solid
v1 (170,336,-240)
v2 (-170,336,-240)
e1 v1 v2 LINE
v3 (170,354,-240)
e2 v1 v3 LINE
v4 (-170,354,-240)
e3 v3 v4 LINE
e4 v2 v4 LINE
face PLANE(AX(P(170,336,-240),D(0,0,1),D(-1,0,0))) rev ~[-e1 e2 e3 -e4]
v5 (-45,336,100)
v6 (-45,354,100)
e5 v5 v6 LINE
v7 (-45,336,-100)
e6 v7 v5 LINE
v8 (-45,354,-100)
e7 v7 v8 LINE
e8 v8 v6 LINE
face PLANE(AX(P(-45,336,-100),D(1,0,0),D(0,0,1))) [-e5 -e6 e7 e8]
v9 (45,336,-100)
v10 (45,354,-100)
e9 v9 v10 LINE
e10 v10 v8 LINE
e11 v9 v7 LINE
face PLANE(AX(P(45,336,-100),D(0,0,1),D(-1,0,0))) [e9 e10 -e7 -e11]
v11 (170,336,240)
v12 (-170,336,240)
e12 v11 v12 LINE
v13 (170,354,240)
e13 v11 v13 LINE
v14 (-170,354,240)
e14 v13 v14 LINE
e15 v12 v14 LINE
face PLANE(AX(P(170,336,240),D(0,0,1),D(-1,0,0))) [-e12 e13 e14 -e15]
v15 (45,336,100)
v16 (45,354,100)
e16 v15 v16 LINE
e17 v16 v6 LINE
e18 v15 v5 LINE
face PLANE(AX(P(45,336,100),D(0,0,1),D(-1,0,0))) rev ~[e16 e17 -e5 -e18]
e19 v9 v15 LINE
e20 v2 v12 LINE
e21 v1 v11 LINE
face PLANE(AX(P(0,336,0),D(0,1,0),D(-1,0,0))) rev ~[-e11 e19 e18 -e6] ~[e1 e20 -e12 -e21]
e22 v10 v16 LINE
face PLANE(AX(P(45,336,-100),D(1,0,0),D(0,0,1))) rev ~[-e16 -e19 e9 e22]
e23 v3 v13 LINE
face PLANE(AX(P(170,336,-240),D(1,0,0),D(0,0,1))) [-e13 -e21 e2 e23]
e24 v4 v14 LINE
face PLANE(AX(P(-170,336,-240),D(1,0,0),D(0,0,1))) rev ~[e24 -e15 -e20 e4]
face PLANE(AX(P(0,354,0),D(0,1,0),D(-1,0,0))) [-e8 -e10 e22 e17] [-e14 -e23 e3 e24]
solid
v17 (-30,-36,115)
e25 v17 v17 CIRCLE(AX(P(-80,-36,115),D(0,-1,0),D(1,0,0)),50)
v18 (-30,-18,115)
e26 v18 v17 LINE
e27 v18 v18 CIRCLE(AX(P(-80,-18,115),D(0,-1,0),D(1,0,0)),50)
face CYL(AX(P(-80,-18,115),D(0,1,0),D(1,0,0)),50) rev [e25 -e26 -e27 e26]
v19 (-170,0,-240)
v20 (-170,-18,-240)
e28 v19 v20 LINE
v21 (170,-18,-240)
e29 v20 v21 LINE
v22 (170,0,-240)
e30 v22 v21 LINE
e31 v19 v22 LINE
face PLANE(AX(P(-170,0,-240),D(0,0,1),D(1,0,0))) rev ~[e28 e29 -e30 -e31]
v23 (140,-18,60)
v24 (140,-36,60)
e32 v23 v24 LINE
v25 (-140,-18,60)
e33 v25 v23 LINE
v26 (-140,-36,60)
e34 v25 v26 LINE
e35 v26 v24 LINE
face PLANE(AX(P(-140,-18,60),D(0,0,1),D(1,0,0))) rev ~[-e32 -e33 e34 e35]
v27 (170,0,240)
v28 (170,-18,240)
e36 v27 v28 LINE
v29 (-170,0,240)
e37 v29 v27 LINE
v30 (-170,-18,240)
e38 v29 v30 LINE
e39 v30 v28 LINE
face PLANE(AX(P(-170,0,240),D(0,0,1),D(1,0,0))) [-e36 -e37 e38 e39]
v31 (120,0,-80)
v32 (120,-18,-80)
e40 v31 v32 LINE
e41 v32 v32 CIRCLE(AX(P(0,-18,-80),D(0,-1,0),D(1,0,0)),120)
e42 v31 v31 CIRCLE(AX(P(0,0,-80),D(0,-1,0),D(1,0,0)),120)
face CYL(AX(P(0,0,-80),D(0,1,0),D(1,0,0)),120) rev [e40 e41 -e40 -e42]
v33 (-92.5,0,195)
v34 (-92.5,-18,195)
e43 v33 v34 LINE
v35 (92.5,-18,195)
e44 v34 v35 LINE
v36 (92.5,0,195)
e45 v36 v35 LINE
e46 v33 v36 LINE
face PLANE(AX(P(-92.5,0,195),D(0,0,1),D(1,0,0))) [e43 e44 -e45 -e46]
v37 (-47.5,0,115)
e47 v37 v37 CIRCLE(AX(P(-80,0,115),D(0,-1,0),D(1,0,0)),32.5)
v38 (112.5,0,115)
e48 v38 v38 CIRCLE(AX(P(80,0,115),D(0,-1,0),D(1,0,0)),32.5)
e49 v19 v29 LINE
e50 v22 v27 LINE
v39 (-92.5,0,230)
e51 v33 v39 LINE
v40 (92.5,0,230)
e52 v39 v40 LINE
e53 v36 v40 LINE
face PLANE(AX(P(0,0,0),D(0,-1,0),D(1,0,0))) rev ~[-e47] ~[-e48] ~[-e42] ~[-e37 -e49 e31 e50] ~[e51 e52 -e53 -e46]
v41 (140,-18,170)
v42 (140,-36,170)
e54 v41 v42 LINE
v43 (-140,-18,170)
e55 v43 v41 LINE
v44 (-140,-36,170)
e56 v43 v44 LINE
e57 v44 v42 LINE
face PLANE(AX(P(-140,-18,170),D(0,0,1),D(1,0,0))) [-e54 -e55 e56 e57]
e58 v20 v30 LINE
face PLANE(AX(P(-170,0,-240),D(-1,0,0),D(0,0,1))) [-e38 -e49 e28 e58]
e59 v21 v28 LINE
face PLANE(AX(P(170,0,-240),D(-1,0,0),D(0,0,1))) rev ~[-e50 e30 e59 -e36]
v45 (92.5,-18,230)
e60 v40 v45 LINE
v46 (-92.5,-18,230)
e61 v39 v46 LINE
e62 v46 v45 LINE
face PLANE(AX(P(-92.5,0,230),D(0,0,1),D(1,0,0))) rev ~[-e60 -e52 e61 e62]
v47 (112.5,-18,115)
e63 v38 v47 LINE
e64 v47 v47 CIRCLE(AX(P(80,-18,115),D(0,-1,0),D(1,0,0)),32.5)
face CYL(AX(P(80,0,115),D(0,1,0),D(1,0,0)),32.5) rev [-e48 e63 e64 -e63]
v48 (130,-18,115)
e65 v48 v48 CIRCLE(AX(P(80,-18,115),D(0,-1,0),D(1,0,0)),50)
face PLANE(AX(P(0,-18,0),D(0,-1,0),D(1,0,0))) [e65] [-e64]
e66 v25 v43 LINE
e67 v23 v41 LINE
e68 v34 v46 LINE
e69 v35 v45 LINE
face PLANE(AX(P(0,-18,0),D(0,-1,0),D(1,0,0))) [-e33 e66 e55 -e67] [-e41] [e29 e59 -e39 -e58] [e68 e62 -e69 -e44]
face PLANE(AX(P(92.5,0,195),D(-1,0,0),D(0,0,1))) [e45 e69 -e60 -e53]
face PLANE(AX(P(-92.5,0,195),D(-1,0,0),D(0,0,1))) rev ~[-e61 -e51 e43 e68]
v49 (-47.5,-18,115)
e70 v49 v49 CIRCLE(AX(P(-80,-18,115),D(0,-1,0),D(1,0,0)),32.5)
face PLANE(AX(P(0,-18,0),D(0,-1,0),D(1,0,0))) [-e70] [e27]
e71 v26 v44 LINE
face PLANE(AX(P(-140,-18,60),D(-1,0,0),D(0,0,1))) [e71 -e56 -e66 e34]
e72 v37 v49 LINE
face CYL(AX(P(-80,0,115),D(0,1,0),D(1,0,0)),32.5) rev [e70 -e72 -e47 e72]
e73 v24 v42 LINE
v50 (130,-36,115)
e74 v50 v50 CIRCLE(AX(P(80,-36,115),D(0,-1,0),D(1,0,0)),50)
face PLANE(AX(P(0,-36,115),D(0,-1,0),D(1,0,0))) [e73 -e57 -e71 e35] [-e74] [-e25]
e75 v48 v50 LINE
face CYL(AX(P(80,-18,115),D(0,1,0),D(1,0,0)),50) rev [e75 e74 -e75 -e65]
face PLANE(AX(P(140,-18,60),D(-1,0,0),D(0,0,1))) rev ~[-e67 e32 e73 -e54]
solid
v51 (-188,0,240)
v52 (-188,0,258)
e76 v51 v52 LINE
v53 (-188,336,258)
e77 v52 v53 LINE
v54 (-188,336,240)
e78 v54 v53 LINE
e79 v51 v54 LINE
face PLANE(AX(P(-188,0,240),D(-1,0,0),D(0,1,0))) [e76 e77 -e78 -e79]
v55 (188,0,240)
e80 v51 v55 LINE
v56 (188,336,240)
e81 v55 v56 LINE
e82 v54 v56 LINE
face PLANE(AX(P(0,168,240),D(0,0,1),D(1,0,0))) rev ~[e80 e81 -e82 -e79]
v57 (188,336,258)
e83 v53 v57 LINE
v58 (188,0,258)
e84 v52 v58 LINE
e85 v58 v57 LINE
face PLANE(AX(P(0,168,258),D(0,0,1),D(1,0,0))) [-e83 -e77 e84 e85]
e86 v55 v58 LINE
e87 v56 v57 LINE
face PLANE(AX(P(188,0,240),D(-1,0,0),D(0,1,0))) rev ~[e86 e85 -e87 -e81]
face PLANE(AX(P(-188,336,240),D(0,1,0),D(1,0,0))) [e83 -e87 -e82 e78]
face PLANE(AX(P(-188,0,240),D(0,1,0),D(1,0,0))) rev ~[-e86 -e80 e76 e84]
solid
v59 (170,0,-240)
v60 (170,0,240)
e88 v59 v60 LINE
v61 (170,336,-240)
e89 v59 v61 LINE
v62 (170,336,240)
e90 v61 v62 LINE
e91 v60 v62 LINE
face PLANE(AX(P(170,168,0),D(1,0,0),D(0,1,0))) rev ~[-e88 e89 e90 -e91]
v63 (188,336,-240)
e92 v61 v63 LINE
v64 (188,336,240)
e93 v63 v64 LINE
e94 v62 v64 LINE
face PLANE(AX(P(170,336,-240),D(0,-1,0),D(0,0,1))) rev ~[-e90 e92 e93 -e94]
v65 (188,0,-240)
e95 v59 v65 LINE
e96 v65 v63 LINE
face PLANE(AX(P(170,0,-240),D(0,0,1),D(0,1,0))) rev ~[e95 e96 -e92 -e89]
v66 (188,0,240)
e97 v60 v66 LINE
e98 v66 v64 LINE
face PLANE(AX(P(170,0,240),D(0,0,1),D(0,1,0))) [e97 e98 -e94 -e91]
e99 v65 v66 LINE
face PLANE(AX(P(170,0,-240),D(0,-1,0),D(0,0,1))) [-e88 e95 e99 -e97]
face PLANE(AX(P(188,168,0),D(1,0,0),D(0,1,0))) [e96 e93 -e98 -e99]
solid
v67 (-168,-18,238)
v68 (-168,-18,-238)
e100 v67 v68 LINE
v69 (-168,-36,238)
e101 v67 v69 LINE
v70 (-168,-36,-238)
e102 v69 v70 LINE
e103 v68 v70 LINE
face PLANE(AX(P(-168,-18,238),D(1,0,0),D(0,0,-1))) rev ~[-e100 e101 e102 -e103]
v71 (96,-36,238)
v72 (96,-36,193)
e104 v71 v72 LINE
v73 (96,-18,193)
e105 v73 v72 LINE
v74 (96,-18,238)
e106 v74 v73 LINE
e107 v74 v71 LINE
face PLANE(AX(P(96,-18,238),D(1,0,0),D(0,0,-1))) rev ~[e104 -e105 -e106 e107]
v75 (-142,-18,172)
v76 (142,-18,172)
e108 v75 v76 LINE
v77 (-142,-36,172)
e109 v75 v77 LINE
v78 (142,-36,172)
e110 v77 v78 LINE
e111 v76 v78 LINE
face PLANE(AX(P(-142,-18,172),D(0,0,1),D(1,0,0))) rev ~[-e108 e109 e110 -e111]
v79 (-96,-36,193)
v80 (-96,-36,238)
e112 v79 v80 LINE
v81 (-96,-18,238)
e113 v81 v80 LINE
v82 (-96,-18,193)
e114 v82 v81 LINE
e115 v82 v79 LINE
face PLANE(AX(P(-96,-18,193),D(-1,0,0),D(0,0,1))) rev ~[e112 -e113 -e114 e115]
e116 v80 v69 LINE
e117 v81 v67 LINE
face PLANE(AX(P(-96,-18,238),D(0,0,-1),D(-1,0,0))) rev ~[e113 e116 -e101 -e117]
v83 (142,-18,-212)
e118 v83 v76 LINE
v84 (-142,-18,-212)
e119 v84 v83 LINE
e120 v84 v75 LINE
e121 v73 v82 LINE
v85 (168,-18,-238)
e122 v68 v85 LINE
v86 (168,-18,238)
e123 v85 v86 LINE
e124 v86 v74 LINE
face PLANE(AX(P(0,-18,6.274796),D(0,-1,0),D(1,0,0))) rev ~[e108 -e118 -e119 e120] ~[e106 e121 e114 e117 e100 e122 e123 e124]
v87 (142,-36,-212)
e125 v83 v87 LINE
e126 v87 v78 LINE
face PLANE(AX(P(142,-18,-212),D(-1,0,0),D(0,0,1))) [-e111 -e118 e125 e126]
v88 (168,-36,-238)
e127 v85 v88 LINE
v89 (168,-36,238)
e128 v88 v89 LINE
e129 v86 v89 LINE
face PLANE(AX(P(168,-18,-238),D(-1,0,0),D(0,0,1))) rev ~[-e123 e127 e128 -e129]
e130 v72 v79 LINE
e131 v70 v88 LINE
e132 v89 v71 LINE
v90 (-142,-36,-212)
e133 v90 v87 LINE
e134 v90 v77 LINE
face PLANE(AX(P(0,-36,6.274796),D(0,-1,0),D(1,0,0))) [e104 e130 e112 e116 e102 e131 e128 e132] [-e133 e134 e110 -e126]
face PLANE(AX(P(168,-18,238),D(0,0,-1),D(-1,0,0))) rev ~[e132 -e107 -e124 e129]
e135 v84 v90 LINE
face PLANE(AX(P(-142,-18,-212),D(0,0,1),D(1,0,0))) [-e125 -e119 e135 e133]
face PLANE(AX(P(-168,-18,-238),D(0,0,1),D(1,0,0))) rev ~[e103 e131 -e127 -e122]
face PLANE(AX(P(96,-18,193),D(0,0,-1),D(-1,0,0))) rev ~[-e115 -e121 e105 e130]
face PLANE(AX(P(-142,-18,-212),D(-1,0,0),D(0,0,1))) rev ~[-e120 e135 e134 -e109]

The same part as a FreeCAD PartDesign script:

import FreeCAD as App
import Part
import Sketcher


def add_polygon(sketch, points):
    """Adds a closed chain of lines whose ends are joined by coincident constraints."""
    first, n = sketch.GeometryCount, len(points)
    for a, b in zip(points, points[1:] + points[:1]):
        sketch.addGeometry(Part.LineSegment(App.Vector(*a, 0), App.Vector(*b, 0)), False)
    for i in range(n):
        sketch.addConstraint(Sketcher.Constraint("Coincident", first + i, 2, first + (i + 1) % n, 1))

doc = App.newDocument("Part")
body = doc.addObject("PartDesign::Body", "Body")

# Sketch on XZ plane
sketch1 = doc.addObject("Sketcher::SketchObject", "Sketch")
body.addObject(sketch1)
sketch1.AttachmentSupport = (doc.XZ_Plane, [""])
sketch1.MapMode = "FlatFace"
add_polygon(sketch1, [(-170, 240), (-170, -240), (170, -240), (170, 240)])  # lines 0-3
sketch1.addGeometry(Part.Circle(App.Vector(0, -80, 0), App.Vector(0, 0, 1), 120), False)  # 4
sketch1.addGeometry(Part.Circle(App.Vector(-80, 115, 0), App.Vector(0, 0, 1), 32), False)  # 5
sketch1.addGeometry(Part.Circle(App.Vector(80, 115, 0), App.Vector(0, 0, 1), 32), False)  # 6
add_polygon(sketch1, [(92, 195), (-92, 195), (-92, 230), (92, 230)])  # lines 7-10
sketch1.addConstraint(Sketcher.Constraint("Vertical", 0))
sketch1.addConstraint(Sketcher.Constraint("Horizontal", 1))
sketch1.addConstraint(Sketcher.Constraint("Vertical", 2))
sketch1.addConstraint(Sketcher.Constraint("Horizontal", 3))
sketch1.addConstraint(Sketcher.Constraint("Horizontal", 7))
sketch1.addConstraint(Sketcher.Constraint("Vertical", 8))
sketch1.addConstraint(Sketcher.Constraint("Horizontal", 9))
sketch1.addConstraint(Sketcher.Constraint("Vertical", 10))
sketch1.addConstraint(Sketcher.Constraint("Equal", 5, 6))
sketch1.addConstraint(Sketcher.Constraint("Symmetric", 0, 2, 2, 2, -1, 1))
sketch1.addConstraint(Sketcher.Constraint("Symmetric", 5, 3, 6, 3, -2))
sketch1.addConstraint(Sketcher.Constraint("PointOnObject", 4, 3, -2))
sketch1.addConstraint(Sketcher.Constraint("Diameter", 4, 240.0))
sketch1.addConstraint(Sketcher.Constraint("Diameter", 5, 65.0))
sketch1.addConstraint(Sketcher.Constraint("DistanceX", 1, 1, 1, 2, 340.0))
sketch1.addConstraint(Sketcher.Constraint("DistanceX", 7, 2, 7, 1, 185.0))
sketch1.addConstraint(Sketcher.Constraint("DistanceY", 0, 2, 0, 1, 480.0))
sketch1.addConstraint(Sketcher.Constraint("DistanceY", 8, 1, 8, 2, 35.0))
sketch1.addConstraint(Sketcher.Constraint("DistanceY", 4, 3, -1, 1, 80.0))
sketch1.addConstraint(Sketcher.Constraint("DistanceX", 5, 3, -1, 1, 80.0))
sketch1.addConstraint(Sketcher.Constraint("DistanceY", -1, 1, 5, 3, 115.0))
sketch1.addConstraint(Sketcher.Constraint("DistanceY", -1, 1, 7, 2, 195.0))
sketch1.addConstraint(Sketcher.Constraint("DistanceX", 7, 2, -1, 1, 92.5))
pad1 = doc.addObject("PartDesign::Pad", "Pad")
body.addObject(pad1)
pad1.Profile = sketch1
pad1.Length = 18

# Sketch on XZ plane
sketch2 = doc.addObject("Sketcher::SketchObject", "Sketch001")
body.addObject(sketch2)
sketch2.AttachmentSupport = (doc.XZ_Plane, [""])
sketch2.MapMode = "FlatFace"
sketch2.AttachmentOffset = App.Placement(App.Vector(0, 0, 18), App.Rotation())
add_polygon(sketch2, [(-140, 170), (-140, 60), (140, 60), (140, 170)])  # lines 0-3
sketch2.addGeometry(Part.Circle(App.Vector(-80, 115, 0), App.Vector(0, 0, 1), 50), False)  # 4
sketch2.addGeometry(Part.Circle(App.Vector(80, 115, 0), App.Vector(0, 0, 1), 50), False)  # 5
sketch2.addConstraint(Sketcher.Constraint("Vertical", 0))
sketch2.addConstraint(Sketcher.Constraint("Horizontal", 1))
sketch2.addConstraint(Sketcher.Constraint("Vertical", 2))
sketch2.addConstraint(Sketcher.Constraint("Horizontal", 3))
sketch2.addConstraint(Sketcher.Constraint("Equal", 4, 5))
sketch2.addConstraint(Sketcher.Constraint("Symmetric", 4, 3, 5, 3, -2))
sketch2.addConstraint(Sketcher.Constraint("Diameter", 4, 100.0))
sketch2.addConstraint(Sketcher.Constraint("DistanceX", 1, 1, 1, 2, 280.0))
sketch2.addConstraint(Sketcher.Constraint("DistanceY", 0, 2, 0, 1, 110.0))
sketch2.addConstraint(Sketcher.Constraint("DistanceX", 4, 3, -1, 1, 80.0))
sketch2.addConstraint(Sketcher.Constraint("DistanceY", -1, 1, 4, 3, 115.0))
sketch2.addConstraint(Sketcher.Constraint("DistanceX", 0, 2, -1, 1, 140.0))
sketch2.addConstraint(Sketcher.Constraint("DistanceY", -1, 1, 0, 2, 60.0))
pad2 = doc.addObject("PartDesign::Pad", "Pad001")
body.addObject(pad2)
pad2.Profile = sketch2
pad2.Length = 18
body2 = doc.addObject("PartDesign::Body", "Body001")

# Sketch on XZ plane
sketch3 = doc.addObject("Sketcher::SketchObject", "Sketch002")
body2.addObject(sketch3)
sketch3.AttachmentSupport = (doc.getObject("XZ_Plane001"), [""])
sketch3.MapMode = "FlatFace"
sketch3.AttachmentOffset = App.Placement(App.Vector(0, 0, 18), App.Rotation())
add_polygon(sketch3, [(-168, 238), (-168, -238), (168, -238), (168, 238), (96, 238), (96, 193), (-96, 193), (-96, 238)])  # lines 0-7
add_polygon(sketch3, [(142, -212), (-142, -212), (-142, 172), (142, 172)])  # lines 8-11
sketch3.addConstraint(Sketcher.Constraint("Vertical", 0))
sketch3.addConstraint(Sketcher.Constraint("Horizontal", 1))
sketch3.addConstraint(Sketcher.Constraint("Vertical", 2))
sketch3.addConstraint(Sketcher.Constraint("Horizontal", 3))
sketch3.addConstraint(Sketcher.Constraint("Vertical", 4))
sketch3.addConstraint(Sketcher.Constraint("Horizontal", 5))
sketch3.addConstraint(Sketcher.Constraint("Vertical", 6))
sketch3.addConstraint(Sketcher.Constraint("Horizontal", 7))
sketch3.addConstraint(Sketcher.Constraint("Horizontal", 8))
sketch3.addConstraint(Sketcher.Constraint("Vertical", 9))
sketch3.addConstraint(Sketcher.Constraint("Horizontal", 10))
sketch3.addConstraint(Sketcher.Constraint("Vertical", 11))
sketch3.addConstraint(Sketcher.Constraint("Symmetric", 0, 2, 2, 2, -1, 1))
sketch3.addConstraint(Sketcher.Constraint("Symmetric", 3, 2, 6, 2, -2))
sketch3.addConstraint(Sketcher.Constraint("DistanceX", 1, 1, 1, 2, 336.0))
sketch3.addConstraint(Sketcher.Constraint("DistanceX", 3, 2, 3, 1, 72.0))
sketch3.addConstraint(Sketcher.Constraint("DistanceX", 8, 2, 8, 1, 284.0))
sketch3.addConstraint(Sketcher.Constraint("DistanceY", 0, 2, 0, 1, 476.0))
sketch3.addConstraint(Sketcher.Constraint("DistanceY", 4, 2, 4, 1, 45.0))
sketch3.addConstraint(Sketcher.Constraint("DistanceY", 9, 1, 9, 2, 384.0))
sketch3.addConstraint(Sketcher.Constraint("DistanceX", 8, 2, -1, 1, 142.0))
sketch3.addConstraint(Sketcher.Constraint("DistanceY", 8, 2, -1, 1, 212.0))
pad3 = doc.addObject("PartDesign::Pad", "Pad002")
body2.addObject(pad3)
pad3.Profile = sketch3
pad3.Length = 18
body3 = doc.addObject("PartDesign::Body", "Body002")

# Sketch on YZ plane
sketch4 = doc.addObject("Sketcher::SketchObject", "Sketch003")
body3.addObject(sketch4)
sketch4.AttachmentSupport = (doc.getObject("YZ_Plane002"), [""])
sketch4.MapMode = "FlatFace"
sketch4.AttachmentOffset = App.Placement(App.Vector(0, 0, 170), App.Rotation())
add_polygon(sketch4, [(0, 240), (0, -240), (336, -240), (336, 240)])  # lines 0-3
sketch4.addConstraint(Sketcher.Constraint("Vertical", 0))
sketch4.addConstraint(Sketcher.Constraint("Horizontal", 1))
sketch4.addConstraint(Sketcher.Constraint("Vertical", 2))
sketch4.addConstraint(Sketcher.Constraint("Horizontal", 3))
sketch4.addConstraint(Sketcher.Constraint("Symmetric", 0, 2, 3, 2, -1, 1))
sketch4.addConstraint(Sketcher.Constraint("DistanceX", 1, 1, 1, 2, 336.0))
sketch4.addConstraint(Sketcher.Constraint("DistanceY", 0, 2, 0, 1, 480.0))
pad4 = doc.addObject("PartDesign::Pad", "Pad003")
body3.addObject(pad4)
pad4.Profile = sketch4
pad4.Length = 18
body4 = doc.addObject("PartDesign::Body", "Body003")

# Sketch on XZ plane
sketch5 = doc.addObject("Sketcher::SketchObject", "Sketch004")
body4.addObject(sketch5)
sketch5.AttachmentSupport = (doc.getObject("XZ_Plane003"), [""])
sketch5.MapMode = "FlatFace"
add_polygon(sketch5, [(170, 240), (170, -240), (-170, -240), (-170, 240)])  # lines 0-3
sketch5.addConstraint(Sketcher.Constraint("Vertical", 0))
sketch5.addConstraint(Sketcher.Constraint("Horizontal", 1))
sketch5.addConstraint(Sketcher.Constraint("Vertical", 2))
sketch5.addConstraint(Sketcher.Constraint("Horizontal", 3))
sketch5.addConstraint(Sketcher.Constraint("Symmetric", 0, 2, 2, 2, -1, 1))
sketch5.addConstraint(Sketcher.Constraint("DistanceX", 1, 2, 1, 1, 340.0))
sketch5.addConstraint(Sketcher.Constraint("DistanceY", 0, 2, 0, 1, 480.0))
pad5 = doc.addObject("PartDesign::Pad", "Pad004")
body4.addObject(pad5)
pad5.Profile = sketch5
pad5.Length = 18
pad5.Reversed = True
body5 = doc.addObject("PartDesign::Body", "Body004")

# Sketch on XZ plane
sketch6 = doc.addObject("Sketcher::SketchObject", "Sketch005")
body5.addObject(sketch6)
sketch6.AttachmentSupport = (doc.getObject("XZ_Plane004"), [""])
sketch6.MapMode = "FlatFace"
sketch6.AttachmentOffset = App.Placement(App.Vector(0, 0, -336), App.Rotation())
add_polygon(sketch6, [(170, 240), (170, -240), (-170, -240), (-170, 240)])  # lines 0-3
add_polygon(sketch6, [(-45, -100), (45, -100), (45, 100), (-45, 100)])  # lines 4-7
sketch6.addConstraint(Sketcher.Constraint("Vertical", 0))
sketch6.addConstraint(Sketcher.Constraint("Horizontal", 1))
sketch6.addConstraint(Sketcher.Constraint("Vertical", 2))
sketch6.addConstraint(Sketcher.Constraint("Horizontal", 3))
sketch6.addConstraint(Sketcher.Constraint("Horizontal", 4))
sketch6.addConstraint(Sketcher.Constraint("Vertical", 5))
sketch6.addConstraint(Sketcher.Constraint("Horizontal", 6))
sketch6.addConstraint(Sketcher.Constraint("Vertical", 7))
sketch6.addConstraint(Sketcher.Constraint("Symmetric", 0, 2, 2, 2, -1, 1))
sketch6.addConstraint(Sketcher.Constraint("Symmetric", 4, 2, 6, 2, -1, 1))
sketch6.addConstraint(Sketcher.Constraint("DistanceX", 1, 2, 1, 1, 340.0))
sketch6.addConstraint(Sketcher.Constraint("DistanceX", 4, 1, 4, 2, 90.0))
sketch6.addConstraint(Sketcher.Constraint("DistanceY", 0, 2, 0, 1, 480.0))
sketch6.addConstraint(Sketcher.Constraint("DistanceY", 5, 1, 5, 2, 200.0))
pad6 = doc.addObject("PartDesign::Pad", "Pad005")
body5.addObject(pad6)
pad6.Profile = sketch6
pad6.Length = 18
pad6.Reversed = True
body6 = doc.addObject("PartDesign::Body", "Body005")

# Sketch on XY plane
sketch7 = doc.addObject("Sketcher::SketchObject", "Sketch006")
body6.addObject(sketch7)
sketch7.AttachmentSupport = (doc.getObject("XY_Plane005"), [""])
sketch7.MapMode = "FlatFace"
sketch7.AttachmentOffset = App.Placement(App.Vector(0, 0, 240), App.Rotation())
add_polygon(sketch7, [(-188, 336), (-188, 0), (188, 0), (188, 336)])  # lines 0-3
sketch7.addConstraint(Sketcher.Constraint("Vertical", 0))
sketch7.addConstraint(Sketcher.Constraint("Horizontal", 1))
sketch7.addConstraint(Sketcher.Constraint("Vertical", 2))
sketch7.addConstraint(Sketcher.Constraint("Horizontal", 3))
sketch7.addConstraint(Sketcher.Constraint("Symmetric", 0, 2, 1, 2, -1, 1))
sketch7.addConstraint(Sketcher.Constraint("DistanceX", 1, 1, 1, 2, 376.0))
sketch7.addConstraint(Sketcher.Constraint("DistanceY", 0, 2, 0, 1, 336.0))
pad7 = doc.addObject("PartDesign::Pad", "Pad006")
body6.addObject(pad7)
pad7.Profile = sketch7
pad7.Length = 18
body4.Visibility = False

doc.recompute()
